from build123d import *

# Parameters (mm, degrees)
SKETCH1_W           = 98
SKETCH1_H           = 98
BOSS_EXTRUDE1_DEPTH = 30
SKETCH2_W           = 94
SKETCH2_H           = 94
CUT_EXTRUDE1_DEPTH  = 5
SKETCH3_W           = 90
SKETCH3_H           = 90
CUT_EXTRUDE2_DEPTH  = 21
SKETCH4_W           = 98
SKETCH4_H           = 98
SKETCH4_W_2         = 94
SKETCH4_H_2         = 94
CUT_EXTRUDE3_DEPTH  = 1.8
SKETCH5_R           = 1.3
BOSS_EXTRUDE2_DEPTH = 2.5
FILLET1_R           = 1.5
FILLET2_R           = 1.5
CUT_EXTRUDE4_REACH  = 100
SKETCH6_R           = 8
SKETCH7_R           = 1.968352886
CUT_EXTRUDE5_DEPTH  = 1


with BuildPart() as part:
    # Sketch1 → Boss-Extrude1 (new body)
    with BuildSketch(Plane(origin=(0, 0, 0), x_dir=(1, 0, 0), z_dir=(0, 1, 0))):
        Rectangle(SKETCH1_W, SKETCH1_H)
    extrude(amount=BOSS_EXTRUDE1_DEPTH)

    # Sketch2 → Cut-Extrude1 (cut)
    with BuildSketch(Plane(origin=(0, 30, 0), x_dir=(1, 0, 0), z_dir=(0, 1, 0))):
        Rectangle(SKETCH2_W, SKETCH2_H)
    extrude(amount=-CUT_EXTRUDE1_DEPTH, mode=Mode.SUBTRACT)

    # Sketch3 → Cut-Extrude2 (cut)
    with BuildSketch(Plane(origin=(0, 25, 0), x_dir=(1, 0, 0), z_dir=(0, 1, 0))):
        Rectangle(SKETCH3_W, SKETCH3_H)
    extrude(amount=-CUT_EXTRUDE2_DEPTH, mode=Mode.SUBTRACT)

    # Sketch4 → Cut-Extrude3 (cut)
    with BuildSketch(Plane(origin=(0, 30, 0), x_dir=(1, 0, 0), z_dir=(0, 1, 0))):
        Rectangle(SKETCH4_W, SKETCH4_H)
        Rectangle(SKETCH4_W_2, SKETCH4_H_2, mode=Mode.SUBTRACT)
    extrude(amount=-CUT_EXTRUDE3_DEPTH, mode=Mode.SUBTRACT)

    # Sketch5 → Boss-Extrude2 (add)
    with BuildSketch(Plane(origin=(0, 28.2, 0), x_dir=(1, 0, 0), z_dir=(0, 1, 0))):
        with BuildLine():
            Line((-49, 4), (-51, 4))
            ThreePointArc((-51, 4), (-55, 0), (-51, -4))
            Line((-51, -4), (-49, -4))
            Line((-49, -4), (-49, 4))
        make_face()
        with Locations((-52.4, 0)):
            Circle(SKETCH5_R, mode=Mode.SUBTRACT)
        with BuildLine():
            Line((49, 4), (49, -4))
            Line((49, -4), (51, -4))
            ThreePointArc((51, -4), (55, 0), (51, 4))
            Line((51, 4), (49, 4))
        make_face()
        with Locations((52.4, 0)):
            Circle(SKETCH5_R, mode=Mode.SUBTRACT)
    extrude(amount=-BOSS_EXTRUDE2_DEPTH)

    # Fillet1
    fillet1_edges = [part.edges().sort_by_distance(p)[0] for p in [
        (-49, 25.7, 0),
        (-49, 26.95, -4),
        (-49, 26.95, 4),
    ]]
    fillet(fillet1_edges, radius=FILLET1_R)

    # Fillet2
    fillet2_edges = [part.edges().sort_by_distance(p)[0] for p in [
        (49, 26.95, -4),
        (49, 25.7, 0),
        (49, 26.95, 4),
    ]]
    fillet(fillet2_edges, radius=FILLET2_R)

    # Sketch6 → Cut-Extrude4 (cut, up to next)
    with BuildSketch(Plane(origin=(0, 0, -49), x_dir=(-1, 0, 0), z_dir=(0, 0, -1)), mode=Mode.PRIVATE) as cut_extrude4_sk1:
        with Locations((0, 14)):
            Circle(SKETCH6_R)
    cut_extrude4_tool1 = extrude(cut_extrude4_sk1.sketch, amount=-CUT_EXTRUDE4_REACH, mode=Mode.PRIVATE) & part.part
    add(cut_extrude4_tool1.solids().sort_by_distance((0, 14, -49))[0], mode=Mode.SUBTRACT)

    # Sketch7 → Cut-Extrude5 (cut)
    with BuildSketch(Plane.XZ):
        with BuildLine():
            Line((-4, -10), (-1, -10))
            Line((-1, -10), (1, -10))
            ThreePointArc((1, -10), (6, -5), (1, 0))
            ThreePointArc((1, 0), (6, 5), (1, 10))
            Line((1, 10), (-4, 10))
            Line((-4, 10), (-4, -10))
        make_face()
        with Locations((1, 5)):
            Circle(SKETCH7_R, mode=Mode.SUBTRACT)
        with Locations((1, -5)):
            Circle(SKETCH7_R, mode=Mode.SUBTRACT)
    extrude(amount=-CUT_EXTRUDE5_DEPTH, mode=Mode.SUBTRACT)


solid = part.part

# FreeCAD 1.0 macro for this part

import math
import FreeCAD as App
import Part
import Sketcher
from FreeCAD import Vector
Q = App.Units.Quantity


def edges_at(feature, points):
    """Names of the edges that pass closest to the given points."""
    edges = feature.Shape.Edges
    near = lambda p: min(range(len(edges)), key=lambda i: edges[i].distToShape(Part.Vertex(*p))[0])
    return sorted({f"Edge{near(p) + 1}" for p in points})


def add_polygon(sketch, points):
    """Adds a closed chain of lines whose ends are joined by coincident constraints."""
    first, n = sketch.GeometryCount, len(points)
    for a, b in zip(points, points[1:] + points[:1]):
        sketch.addGeometry(Part.LineSegment(App.Vector(*a, 0), App.Vector(*b, 0)), False)
    for i in range(n):
        sketch.addConstraint(Sketcher.Constraint("Coincident", first + i, 2, first + (i + 1) % n, 1))

doc = App.newDocument("Part")
body = doc.addObject("PartDesign::Body", "Body")

# Sketch on XZ plane
sketch1 = body.newObject("Sketcher::SketchObject", "Sketch")
sketch1.AttachmentSupport = (doc.getObject("XZ_Plane"), [""])
sketch1.MapMode = "FlatFace"
add_polygon(sketch1, [(-49, -49), (-49, 49), (49, 49), (49, -49)])  # lines 0-3
sketch1.addConstraint([
    Sketcher.Constraint("Vertical", 0),
    Sketcher.Constraint("Horizontal", 1),
    Sketcher.Constraint("Vertical", 2),
    Sketcher.Constraint("Horizontal", 3),
    Sketcher.Constraint("Symmetric", 0, 2, 2, 2, -1, 1),
    Sketcher.Constraint("Equal", 3, 0),
    Sketcher.Constraint("DistanceX", 1, 1, 1, 2, Q("98 mm")),
])
pad1 = body.newObject("PartDesign::Pad", "Pad")
pad1.Profile = sketch1
pad1.Length = 30
pad1.Reversed = True

# Sketch on XZ plane
sketch2 = body.newObject("Sketcher::SketchObject", "Sketch001")
sketch2.AttachmentSupport = (doc.getObject("XZ_Plane"), [""])
sketch2.MapMode = "FlatFace"
sketch2.AttachmentOffset = App.Placement(Vector(0, 0, -30), App.Rotation())
add_polygon(sketch2, [(-47, -47), (-47, 47), (47, 47), (47, -47)])  # lines 0-3
sketch2.addConstraint([
    Sketcher.Constraint("Vertical", 0),
    Sketcher.Constraint("Horizontal", 1),
    Sketcher.Constraint("Vertical", 2),
    Sketcher.Constraint("Horizontal", 3),
    Sketcher.Constraint("Symmetric", 0, 2, 2, 2, -1, 1),
    Sketcher.Constraint("Equal", 3, 0),
    Sketcher.Constraint("DistanceX", 1, 1, 1, 2, Q("94 mm")),
])
pocket1 = body.newObject("PartDesign::Pocket", "Pocket")
pocket1.Profile = sketch2
pocket1.Length = 5
pocket1.Reversed = True

# Sketch on XZ plane
sketch3 = body.newObject("Sketcher::SketchObject", "Sketch002")
sketch3.AttachmentSupport = (doc.getObject("XZ_Plane"), [""])
sketch3.MapMode = "FlatFace"
sketch3.AttachmentOffset = App.Placement(Vector(0, 0, -25), App.Rotation())
add_polygon(sketch3, [(-45, -45), (-45, 45), (45, 45), (45, -45)])  # lines 0-3
sketch3.addConstraint([
    Sketcher.Constraint("Vertical", 0),
    Sketcher.Constraint("Horizontal", 1),
    Sketcher.Constraint("Vertical", 2),
    Sketcher.Constraint("Horizontal", 3),
    Sketcher.Constraint("Symmetric", 0, 2, 2, 2, -1, 1),
    Sketcher.Constraint("Equal", 3, 0),
    Sketcher.Constraint("DistanceX", 1, 1, 1, 2, Q("90 mm")),
])
pocket2 = body.newObject("PartDesign::Pocket", "Pocket001")
pocket2.Profile = sketch3
pocket2.Length = 21
pocket2.Reversed = True

# Sketch on XZ plane
sketch4 = body.newObject("Sketcher::SketchObject", "Sketch003")
sketch4.AttachmentSupport = (doc.getObject("XZ_Plane"), [""])
sketch4.MapMode = "FlatFace"
sketch4.AttachmentOffset = App.Placement(Vector(0, 0, -30), App.Rotation())
add_polygon(sketch4, [(-49, -49), (-49, 49), (49, 49), (49, -49)])  # lines 0-3
add_polygon(sketch4, [(47, 47), (-47, 47), (-47, -47), (47, -47)])  # lines 4-7
sketch4.addConstraint([
    Sketcher.Constraint("Vertical", 0),
    Sketcher.Constraint("Horizontal", 1),
    Sketcher.Constraint("Vertical", 2),
    Sketcher.Constraint("Horizontal", 3),
    Sketcher.Constraint("Horizontal", 4),
    Sketcher.Constraint("Vertical", 5),
    Sketcher.Constraint("Horizontal", 6),
    Sketcher.Constraint("Vertical", 7),
    Sketcher.Constraint("Symmetric", 0, 2, 2, 2, -1, 1),
    Sketcher.Constraint("Symmetric", 4, 2, 6, 2, -1, 1),
    Sketcher.Constraint("Equal", 3, 0),
    Sketcher.Constraint("Equal", 6, 5),
    Sketcher.Constraint("DistanceX", 1, 1, 1, 2, Q("98 mm")),
    Sketcher.Constraint("DistanceX", 4, 2, 4, 1, Q("94 mm")),
])
pocket3 = body.newObject("PartDesign::Pocket", "Pocket002")
pocket3.Profile = sketch4
pocket3.Length = 1.8
pocket3.Reversed = True

# Sketch on XZ plane
sketch5 = body.newObject("Sketcher::SketchObject", "Sketch004")
sketch5.AttachmentSupport = (doc.getObject("XZ_Plane"), [""])
sketch5.MapMode = "FlatFace"
sketch5.AttachmentOffset = App.Placement(Vector(0, 0, -28.2), App.Rotation())
sketch5.addGeometry([
    Part.LineSegment(Vector(-49, -4, 0), Vector(-51, -4, 0)),  # 0
    Part.ArcOfCircle(Part.Circle(Vector(-51, 0, 0), Vector(0, 0, 1), 4), math.radians(90), math.radians(270)),  # 1
    Part.LineSegment(Vector(-51, 4, 0), Vector(-49, 4, 0)),  # 2
    Part.LineSegment(Vector(-49, 4, 0), Vector(-49, -4, 0)),  # 3
    Part.Circle(Vector(-52.4, 0, 0), Vector(0, 0, 1), 1.3),  # 4
    Part.LineSegment(Vector(49, -4, 0), Vector(49, 4, 0)),  # 5
    Part.LineSegment(Vector(49, 4, 0), Vector(51, 4, 0)),  # 6
    Part.ArcOfCircle(Part.Circle(Vector(51, 0, 0), Vector(0, 0, 1), 4), math.radians(-90), math.radians(90)),  # 7
    Part.LineSegment(Vector(51, -4, 0), Vector(49, -4, 0)),  # 8
    Part.Circle(Vector(52.4, 0, 0), Vector(0, 0, 1), 1.3),  # 9
], False)
sketch5.addConstraint([
    Sketcher.Constraint("Tangent", 0, 2, 1, 2),
    Sketcher.Constraint("Tangent", 1, 1, 2, 1),
    Sketcher.Constraint("Coincident", 2, 2, 3, 1),
    Sketcher.Constraint("Coincident", 3, 2, 0, 1),
    Sketcher.Constraint("Coincident", 5, 2, 6, 1),
    Sketcher.Constraint("Tangent", 6, 2, 7, 2),
    Sketcher.Constraint("Tangent", 7, 1, 8, 1),
    Sketcher.Constraint("Coincident", 8, 2, 5, 1),
    Sketcher.Constraint("Horizontal", 0),
    Sketcher.Constraint("Horizontal", 2),
    Sketcher.Constraint("Vertical", 3),
    Sketcher.Constraint("Vertical", 5),
    Sketcher.Constraint("Horizontal", 6),
    Sketcher.Constraint("Horizontal", 8),
    Sketcher.Constraint("Equal", 1, 7),
    Sketcher.Constraint("Equal", 4, 9),
    Sketcher.Constraint("Symmetric", 1, 3, 7, 3, -1, 1),
    Sketcher.Constraint("Symmetric", 4, 3, 9, 3, -1, 1),
    Sketcher.Constraint("Symmetric", 2, 2, 5, 2, -2),
    Sketcher.Constraint("PointOnObject", 4, 3, -1),
    Sketcher.Constraint("Radius", 1, Q("4 mm")),
    Sketcher.Constraint("Diameter", 4, Q("2.6 mm")),
    Sketcher.Constraint("DistanceX", 0, 2, 0, 1, Q("2 mm")),
    Sketcher.Constraint("DistanceX", 1, 3, -1, 1, Q("51 mm")),
    Sketcher.Constraint("DistanceX", 4, 3, -1, 1, Q("52.4 mm")),
])
pad2 = body.newObject("PartDesign::Pad", "Pad001")
pad2.Profile = sketch5
pad2.Length = 2.5
doc.recompute()

fillet = body.newObject("PartDesign::Fillet", "Fillet")
fillet.Base = (pad2, edges_at(pad2, [(-49, 25.7, 0), (-49, 26.95, -4), (-49, 26.95, 4)]))
fillet.Radius = 1.5
doc.recompute()

fillet2 = body.newObject("PartDesign::Fillet", "Fillet001")
fillet2.Base = (fillet, edges_at(fillet, [(49, 26.95, -4), (49, 25.7, 0), (49, 26.95, 4)]))
fillet2.Radius = 1.5

# Sketch on XY plane
sketch6 = body.newObject("Sketcher::SketchObject", "Sketch005")
sketch6.AttachmentSupport = (doc.getObject("XY_Plane"), [""])
sketch6.MapMode = "FlatFace"
sketch6.AttachmentOffset = App.Placement(Vector(0, 0, -49), App.Rotation())
sketch6.addGeometry(Part.Circle(Vector(0, 14, 0), Vector(0, 0, 1), 8), False)
sketch6.addConstraint([
    Sketcher.Constraint("PointOnObject", 0, 3, -2),
    Sketcher.Constraint("Diameter", 0, Q("16 mm")),
    Sketcher.Constraint("DistanceY", -1, 1, 0, 3, Q("14 mm")),
])
pocket4 = body.newObject("PartDesign::Pocket", "Pocket003")
pocket4.Profile = sketch6
pocket4.Type = "UpToFirst"
pocket4.Reversed = True

# Sketch on XZ plane
sketch7 = body.newObject("Sketcher::SketchObject", "Sketch006")
sketch7.AttachmentSupport = (doc.getObject("XZ_Plane"), [""])
sketch7.MapMode = "FlatFace"
sketch7.addGeometry([
    Part.LineSegment(Vector(-4, -10, 0), Vector(1, -10, 0)),  # 0
    Part.ArcOfCircle(Part.Circle(Vector(1, -5, 0), Vector(0, 0, 1), 5), math.radians(-90), math.radians(90)),  # 1
    Part.ArcOfCircle(Part.Circle(Vector(1, 5, 0), Vector(0, 0, 1), 5), math.radians(-90), math.radians(90)),  # 2
    Part.LineSegment(Vector(1, 10, 0), Vector(-4, 10, 0)),  # 3
    Part.LineSegment(Vector(-4, 10, 0), Vector(-4, -10, 0)),  # 4
    Part.Circle(Vector(1, -5, 0), Vector(0, 0, 1), 1.968353),  # 5
    Part.Circle(Vector(1, 5, 0), Vector(0, 0, 1), 1.968353),  # 6
], False)
sketch7.addConstraint([
    Sketcher.Constraint("Tangent", 0, 2, 1, 1),
    Sketcher.Constraint("Tangent", 1, 2, 2, 1),
    Sketcher.Constraint("Tangent", 2, 2, 3, 1),
    Sketcher.Constraint("Coincident", 3, 2, 4, 1),
    Sketcher.Constraint("Coincident", 4, 2, 0, 1),
    Sketcher.Constraint("Horizontal", 0),
    Sketcher.Constraint("Horizontal", 3),
    Sketcher.Constraint("Vertical", 4),
    Sketcher.Constraint("Coincident", 5, 3, 1, 3),
    Sketcher.Constraint("Coincident", 6, 3, 2, 3),
    Sketcher.Constraint("Equal", 1, 2),
    Sketcher.Constraint("Equal", 5, 6),
    Sketcher.Constraint("Symmetric", 1, 3, 2, 3, -1),
    Sketcher.Constraint("Radius", 1, Q("5 mm")),
    Sketcher.Constraint("DistanceX", 0, 1, 0, 2, Q("5 mm")),
    Sketcher.Constraint("DistanceX", -1, 1, 1, 3, Q("1 mm")),
    Sketcher.Constraint("Diameter", 5, Q("3.936706 mm")),
])
pocket5 = body.newObject("PartDesign::Pocket", "Pocket004")
pocket5.Profile = sketch7
pocket5.Length = 1

doc.recompute()
